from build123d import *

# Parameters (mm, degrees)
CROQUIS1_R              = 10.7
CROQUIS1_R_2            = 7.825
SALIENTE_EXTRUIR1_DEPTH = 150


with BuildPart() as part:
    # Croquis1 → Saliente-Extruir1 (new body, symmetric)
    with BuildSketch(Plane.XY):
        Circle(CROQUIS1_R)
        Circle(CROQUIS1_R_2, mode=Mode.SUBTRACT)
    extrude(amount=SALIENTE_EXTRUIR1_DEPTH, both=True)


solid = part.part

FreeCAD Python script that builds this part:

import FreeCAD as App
import Part
import Sketcher
from FreeCAD import Vector

doc = App.newDocument("Part")
params = doc.addObject("Spreadsheet::Sheet", "Params")
for row, (alias, value) in enumerate([
    ("sketch1_diameter", "21.4 mm"),
    ("sketch1_diameter2", "15.65 mm"),
    ("pad1_length", "300 mm"),
], start=1):
    params.set(f"A{row}", alias)
    params.set(f"B{row}", "=" + value)
    params.setAlias(f"B{row}", alias)

body = doc.addObject("PartDesign::Body", "Body")

sketch1 = doc.addObject("Sketcher::SketchObject", "Sketch")
body.addObject(sketch1)
sketch1.AttachmentSupport = (doc.XY_Plane, [""])
sketch1.MapMode = "FlatFace"
sketch1.addGeometry(Part.Circle(Vector(0, 0, 0), Vector(0, 0, 1), 11), False)
sketch1.addGeometry(Part.Circle(Vector(0, 0, 0), Vector(0, 0, 1), 8), False)
sketch1.addConstraint(Sketcher.Constraint("Coincident", 0, 3, -1, 1))
sketch1.addConstraint(Sketcher.Constraint("Coincident", 1, 3, -1, 1))
sketch1.addConstraint(Sketcher.Constraint("Diameter", 0, 21.4))
sketch1.addConstraint(Sketcher.Constraint("Diameter", 1, 15.65))
sketch1.setExpression("Constraints[2]", "Params.sketch1_diameter")
sketch1.setExpression("Constraints[3]", "Params.sketch1_diameter2")
pad1 = doc.addObject("PartDesign::Pad", "Pad")
body.addObject(pad1)
pad1.Profile = sketch1
pad1.setExpression("Length", "Params.pad1_length")
pad1.Midplane = True

doc.recompute()
